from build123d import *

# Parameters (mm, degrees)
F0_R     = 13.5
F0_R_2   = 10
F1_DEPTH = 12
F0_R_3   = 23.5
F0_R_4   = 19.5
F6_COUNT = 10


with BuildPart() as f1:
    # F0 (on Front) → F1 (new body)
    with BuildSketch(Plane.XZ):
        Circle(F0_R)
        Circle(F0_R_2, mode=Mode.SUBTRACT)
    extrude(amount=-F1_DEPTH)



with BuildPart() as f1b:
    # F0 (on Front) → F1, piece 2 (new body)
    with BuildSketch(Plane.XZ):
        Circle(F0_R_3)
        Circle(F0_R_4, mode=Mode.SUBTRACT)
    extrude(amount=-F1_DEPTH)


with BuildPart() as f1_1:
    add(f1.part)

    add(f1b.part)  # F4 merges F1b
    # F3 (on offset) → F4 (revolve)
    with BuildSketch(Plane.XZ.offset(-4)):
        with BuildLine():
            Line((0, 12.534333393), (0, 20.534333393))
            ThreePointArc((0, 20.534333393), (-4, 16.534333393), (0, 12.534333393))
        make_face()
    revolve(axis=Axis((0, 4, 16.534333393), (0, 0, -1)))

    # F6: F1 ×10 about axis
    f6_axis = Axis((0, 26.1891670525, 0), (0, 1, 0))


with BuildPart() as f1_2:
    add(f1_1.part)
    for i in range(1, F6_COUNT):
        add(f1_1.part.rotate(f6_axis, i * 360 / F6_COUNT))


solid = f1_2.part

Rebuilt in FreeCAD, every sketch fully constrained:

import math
import FreeCAD as App
import Part
import Sketcher

doc = App.newDocument("Part")
body = doc.addObject("PartDesign::Body", "Body")

# Sketch on XZ plane
sketch1 = body.newObject("Sketcher::SketchObject", "Sketch")
sketch1.AttachmentSupport = (doc.getObject("XZ_Plane"), [""])
sketch1.MapMode = "FlatFace"
sketch1.addGeometry([
    Part.Circle(App.Vector(0, 0, 0), App.Vector(0, 0, 1), 13.5),
    Part.Circle(App.Vector(0, 0, 0), App.Vector(0, 0, 1), 10),
], False)
sketch1.addConstraint([
    Sketcher.Constraint("Coincident", 0, 3, -1, 1),
    Sketcher.Constraint("Coincident", 1, 3, -1, 1),
    Sketcher.Constraint("Diameter", 0, 27.0),
    Sketcher.Constraint("Diameter", 1, 20.0),
])
pad1 = body.newObject("PartDesign::Pad", "Pad")
pad1.Profile = sketch1
pad1.Length = 12
pad1.Reversed = True
body2 = doc.addObject("PartDesign::Body", "Body001")

# Sketch on XZ plane
sketch2 = body2.newObject("Sketcher::SketchObject", "Sketch001")
sketch2.AttachmentSupport = (doc.getObject("XZ_Plane001"), [""])
sketch2.MapMode = "FlatFace"
sketch2.addGeometry([
    Part.Circle(App.Vector(0, 0, 0), App.Vector(0, 0, 1), 23.5),
    Part.Circle(App.Vector(0, 0, 0), App.Vector(0, 0, 1), 19.5),
], False)
sketch2.addConstraint([
    Sketcher.Constraint("Coincident", 0, 3, -1, 1),
    Sketcher.Constraint("Coincident", 1, 3, -1, 1),
    Sketcher.Constraint("Diameter", 0, 47.0),
    Sketcher.Constraint("Diameter", 1, 39.0),
])
pad2 = body2.newObject("PartDesign::Pad", "Pad001")
pad2.Profile = sketch2
pad2.Length = 12
pad2.Reversed = True
body.AllowCompound = True
doc.recompute()

boolean = body.newObject("PartDesign::Boolean", "Boolean")
boolean.Type = "Fuse"
boolean.addObjects([body2])

# Sketch on XZ plane
sketch3 = body.newObject("Sketcher::SketchObject", "Sketch002")
sketch3.AttachmentSupport = (doc.getObject("XZ_Plane"), [""])
sketch3.MapMode = "FlatFace"
sketch3.AttachmentOffset = App.Placement(App.Vector(0, 0, -4), App.Rotation())
sketch3.addGeometry([
    Part.LineSegment(App.Vector(0, 12.534333, 0), App.Vector(0, 20.534333, 0)),
    Part.ArcOfCircle(Part.Circle(App.Vector(0, 16.534333, 0), App.Vector(0, 0, 1), 4), math.radians(90), math.radians(270)),
], False)
sketch3.addConstraint([
    Sketcher.Constraint("Coincident", 0, 1, 1, 2),
    Sketcher.Constraint("Coincident", 1, 1, 0, 2),
    Sketcher.Constraint("Vertical", 0),
    Sketcher.Constraint("PointOnObject", 1, 3, -2),
    Sketcher.Constraint("PointOnObject", 0, 1, -2),
    Sketcher.Constraint("Radius", 1, 4.0),
    Sketcher.Constraint("DistanceY", -1, 1, 1, 3, 16.534333),
])
revolution = body.newObject("PartDesign::Revolution", "Revolution")
revolution.Profile = sketch3
revolution.ReferenceAxis = (sketch3, ["V_Axis"])
revolution.Angle = 360
body3 = doc.addObject("PartDesign::Body", "Body002")
doc.recompute()

body3.BaseFeature = body
doc.recompute()

body4 = doc.addObject("PartDesign::Body", "Body003")
body4.BaseFeature = body
body4.Placement = App.Placement(App.Vector(0, 0, 0), App.Rotation(App.Vector(0, 1, 0), 36))
boolean2 = body3.newObject("PartDesign::Boolean", "Boolean001")
boolean2.Type = "Fuse"
boolean2.addObjects([body4])
doc.recompute()

body5 = doc.addObject("PartDesign::Body", "Body004")
body5.BaseFeature = body
body5.Placement = App.Placement(App.Vector(0, 0, 0), App.Rotation(App.Vector(0, 1, 0), 72))
boolean3 = body3.newObject("PartDesign::Boolean", "Boolean002")
boolean3.Type = "Fuse"
boolean3.addObjects([body5])
doc.recompute()

body6 = doc.addObject("PartDesign::Body", "Body005")
body6.BaseFeature = body
body6.Placement = App.Placement(App.Vector(0, 0, 0), App.Rotation(App.Vector(0, 1, 0), 108))
boolean4 = body3.newObject("PartDesign::Boolean", "Boolean003")
boolean4.Type = "Fuse"
boolean4.addObjects([body6])
doc.recompute()

body7 = doc.addObject("PartDesign::Body", "Body006")
body7.BaseFeature = body
body7.Placement = App.Placement(App.Vector(0, 0, 0), App.Rotation(App.Vector(0, 1, 0), 144))
boolean5 = body3.newObject("PartDesign::Boolean", "Boolean004")
boolean5.Type = "Fuse"
boolean5.addObjects([body7])
doc.recompute()

body8 = doc.addObject("PartDesign::Body", "Body007")
body8.BaseFeature = body
body8.Placement = App.Placement(App.Vector(0, 0, 0), App.Rotation(App.Vector(0, 1, 0), 180))
boolean6 = body3.newObject("PartDesign::Boolean", "Boolean005")
boolean6.Type = "Fuse"
boolean6.addObjects([body8])
doc.recompute()

body9 = doc.addObject("PartDesign::Body", "Body008")
body9.BaseFeature = body
body9.Placement = App.Placement(App.Vector(0, 0, 0), App.Rotation(App.Vector(0, 1, 0), 216))
boolean7 = body3.newObject("PartDesign::Boolean", "Boolean006")
boolean7.Type = "Fuse"
boolean7.addObjects([body9])
doc.recompute()

body10 = doc.addObject("PartDesign::Body", "Body009")
body10.BaseFeature = body
body10.Placement = App.Placement(App.Vector(0, 0, 0), App.Rotation(App.Vector(0, 1, 0), 252))
boolean8 = body3.newObject("PartDesign::Boolean", "Boolean007")
boolean8.Type = "Fuse"
boolean8.addObjects([body10])
doc.recompute()

body11 = doc.addObject("PartDesign::Body", "Body010")
body11.BaseFeature = body
body11.Placement = App.Placement(App.Vector(0, 0, 0), App.Rotation(App.Vector(0, 1, 0), 288))
boolean9 = body3.newObject("PartDesign::Boolean", "Boolean008")
boolean9.Type = "Fuse"
boolean9.addObjects([body11])
doc.recompute()

body.Placement = App.Placement(App.Vector(0, 0, 0), App.Rotation(App.Vector(0, 1, 0), 324))
boolean10 = body3.newObject("PartDesign::Boolean", "Boolean009")
boolean10.Type = "Fuse"
boolean10.addObjects([body])

doc.recompute()
